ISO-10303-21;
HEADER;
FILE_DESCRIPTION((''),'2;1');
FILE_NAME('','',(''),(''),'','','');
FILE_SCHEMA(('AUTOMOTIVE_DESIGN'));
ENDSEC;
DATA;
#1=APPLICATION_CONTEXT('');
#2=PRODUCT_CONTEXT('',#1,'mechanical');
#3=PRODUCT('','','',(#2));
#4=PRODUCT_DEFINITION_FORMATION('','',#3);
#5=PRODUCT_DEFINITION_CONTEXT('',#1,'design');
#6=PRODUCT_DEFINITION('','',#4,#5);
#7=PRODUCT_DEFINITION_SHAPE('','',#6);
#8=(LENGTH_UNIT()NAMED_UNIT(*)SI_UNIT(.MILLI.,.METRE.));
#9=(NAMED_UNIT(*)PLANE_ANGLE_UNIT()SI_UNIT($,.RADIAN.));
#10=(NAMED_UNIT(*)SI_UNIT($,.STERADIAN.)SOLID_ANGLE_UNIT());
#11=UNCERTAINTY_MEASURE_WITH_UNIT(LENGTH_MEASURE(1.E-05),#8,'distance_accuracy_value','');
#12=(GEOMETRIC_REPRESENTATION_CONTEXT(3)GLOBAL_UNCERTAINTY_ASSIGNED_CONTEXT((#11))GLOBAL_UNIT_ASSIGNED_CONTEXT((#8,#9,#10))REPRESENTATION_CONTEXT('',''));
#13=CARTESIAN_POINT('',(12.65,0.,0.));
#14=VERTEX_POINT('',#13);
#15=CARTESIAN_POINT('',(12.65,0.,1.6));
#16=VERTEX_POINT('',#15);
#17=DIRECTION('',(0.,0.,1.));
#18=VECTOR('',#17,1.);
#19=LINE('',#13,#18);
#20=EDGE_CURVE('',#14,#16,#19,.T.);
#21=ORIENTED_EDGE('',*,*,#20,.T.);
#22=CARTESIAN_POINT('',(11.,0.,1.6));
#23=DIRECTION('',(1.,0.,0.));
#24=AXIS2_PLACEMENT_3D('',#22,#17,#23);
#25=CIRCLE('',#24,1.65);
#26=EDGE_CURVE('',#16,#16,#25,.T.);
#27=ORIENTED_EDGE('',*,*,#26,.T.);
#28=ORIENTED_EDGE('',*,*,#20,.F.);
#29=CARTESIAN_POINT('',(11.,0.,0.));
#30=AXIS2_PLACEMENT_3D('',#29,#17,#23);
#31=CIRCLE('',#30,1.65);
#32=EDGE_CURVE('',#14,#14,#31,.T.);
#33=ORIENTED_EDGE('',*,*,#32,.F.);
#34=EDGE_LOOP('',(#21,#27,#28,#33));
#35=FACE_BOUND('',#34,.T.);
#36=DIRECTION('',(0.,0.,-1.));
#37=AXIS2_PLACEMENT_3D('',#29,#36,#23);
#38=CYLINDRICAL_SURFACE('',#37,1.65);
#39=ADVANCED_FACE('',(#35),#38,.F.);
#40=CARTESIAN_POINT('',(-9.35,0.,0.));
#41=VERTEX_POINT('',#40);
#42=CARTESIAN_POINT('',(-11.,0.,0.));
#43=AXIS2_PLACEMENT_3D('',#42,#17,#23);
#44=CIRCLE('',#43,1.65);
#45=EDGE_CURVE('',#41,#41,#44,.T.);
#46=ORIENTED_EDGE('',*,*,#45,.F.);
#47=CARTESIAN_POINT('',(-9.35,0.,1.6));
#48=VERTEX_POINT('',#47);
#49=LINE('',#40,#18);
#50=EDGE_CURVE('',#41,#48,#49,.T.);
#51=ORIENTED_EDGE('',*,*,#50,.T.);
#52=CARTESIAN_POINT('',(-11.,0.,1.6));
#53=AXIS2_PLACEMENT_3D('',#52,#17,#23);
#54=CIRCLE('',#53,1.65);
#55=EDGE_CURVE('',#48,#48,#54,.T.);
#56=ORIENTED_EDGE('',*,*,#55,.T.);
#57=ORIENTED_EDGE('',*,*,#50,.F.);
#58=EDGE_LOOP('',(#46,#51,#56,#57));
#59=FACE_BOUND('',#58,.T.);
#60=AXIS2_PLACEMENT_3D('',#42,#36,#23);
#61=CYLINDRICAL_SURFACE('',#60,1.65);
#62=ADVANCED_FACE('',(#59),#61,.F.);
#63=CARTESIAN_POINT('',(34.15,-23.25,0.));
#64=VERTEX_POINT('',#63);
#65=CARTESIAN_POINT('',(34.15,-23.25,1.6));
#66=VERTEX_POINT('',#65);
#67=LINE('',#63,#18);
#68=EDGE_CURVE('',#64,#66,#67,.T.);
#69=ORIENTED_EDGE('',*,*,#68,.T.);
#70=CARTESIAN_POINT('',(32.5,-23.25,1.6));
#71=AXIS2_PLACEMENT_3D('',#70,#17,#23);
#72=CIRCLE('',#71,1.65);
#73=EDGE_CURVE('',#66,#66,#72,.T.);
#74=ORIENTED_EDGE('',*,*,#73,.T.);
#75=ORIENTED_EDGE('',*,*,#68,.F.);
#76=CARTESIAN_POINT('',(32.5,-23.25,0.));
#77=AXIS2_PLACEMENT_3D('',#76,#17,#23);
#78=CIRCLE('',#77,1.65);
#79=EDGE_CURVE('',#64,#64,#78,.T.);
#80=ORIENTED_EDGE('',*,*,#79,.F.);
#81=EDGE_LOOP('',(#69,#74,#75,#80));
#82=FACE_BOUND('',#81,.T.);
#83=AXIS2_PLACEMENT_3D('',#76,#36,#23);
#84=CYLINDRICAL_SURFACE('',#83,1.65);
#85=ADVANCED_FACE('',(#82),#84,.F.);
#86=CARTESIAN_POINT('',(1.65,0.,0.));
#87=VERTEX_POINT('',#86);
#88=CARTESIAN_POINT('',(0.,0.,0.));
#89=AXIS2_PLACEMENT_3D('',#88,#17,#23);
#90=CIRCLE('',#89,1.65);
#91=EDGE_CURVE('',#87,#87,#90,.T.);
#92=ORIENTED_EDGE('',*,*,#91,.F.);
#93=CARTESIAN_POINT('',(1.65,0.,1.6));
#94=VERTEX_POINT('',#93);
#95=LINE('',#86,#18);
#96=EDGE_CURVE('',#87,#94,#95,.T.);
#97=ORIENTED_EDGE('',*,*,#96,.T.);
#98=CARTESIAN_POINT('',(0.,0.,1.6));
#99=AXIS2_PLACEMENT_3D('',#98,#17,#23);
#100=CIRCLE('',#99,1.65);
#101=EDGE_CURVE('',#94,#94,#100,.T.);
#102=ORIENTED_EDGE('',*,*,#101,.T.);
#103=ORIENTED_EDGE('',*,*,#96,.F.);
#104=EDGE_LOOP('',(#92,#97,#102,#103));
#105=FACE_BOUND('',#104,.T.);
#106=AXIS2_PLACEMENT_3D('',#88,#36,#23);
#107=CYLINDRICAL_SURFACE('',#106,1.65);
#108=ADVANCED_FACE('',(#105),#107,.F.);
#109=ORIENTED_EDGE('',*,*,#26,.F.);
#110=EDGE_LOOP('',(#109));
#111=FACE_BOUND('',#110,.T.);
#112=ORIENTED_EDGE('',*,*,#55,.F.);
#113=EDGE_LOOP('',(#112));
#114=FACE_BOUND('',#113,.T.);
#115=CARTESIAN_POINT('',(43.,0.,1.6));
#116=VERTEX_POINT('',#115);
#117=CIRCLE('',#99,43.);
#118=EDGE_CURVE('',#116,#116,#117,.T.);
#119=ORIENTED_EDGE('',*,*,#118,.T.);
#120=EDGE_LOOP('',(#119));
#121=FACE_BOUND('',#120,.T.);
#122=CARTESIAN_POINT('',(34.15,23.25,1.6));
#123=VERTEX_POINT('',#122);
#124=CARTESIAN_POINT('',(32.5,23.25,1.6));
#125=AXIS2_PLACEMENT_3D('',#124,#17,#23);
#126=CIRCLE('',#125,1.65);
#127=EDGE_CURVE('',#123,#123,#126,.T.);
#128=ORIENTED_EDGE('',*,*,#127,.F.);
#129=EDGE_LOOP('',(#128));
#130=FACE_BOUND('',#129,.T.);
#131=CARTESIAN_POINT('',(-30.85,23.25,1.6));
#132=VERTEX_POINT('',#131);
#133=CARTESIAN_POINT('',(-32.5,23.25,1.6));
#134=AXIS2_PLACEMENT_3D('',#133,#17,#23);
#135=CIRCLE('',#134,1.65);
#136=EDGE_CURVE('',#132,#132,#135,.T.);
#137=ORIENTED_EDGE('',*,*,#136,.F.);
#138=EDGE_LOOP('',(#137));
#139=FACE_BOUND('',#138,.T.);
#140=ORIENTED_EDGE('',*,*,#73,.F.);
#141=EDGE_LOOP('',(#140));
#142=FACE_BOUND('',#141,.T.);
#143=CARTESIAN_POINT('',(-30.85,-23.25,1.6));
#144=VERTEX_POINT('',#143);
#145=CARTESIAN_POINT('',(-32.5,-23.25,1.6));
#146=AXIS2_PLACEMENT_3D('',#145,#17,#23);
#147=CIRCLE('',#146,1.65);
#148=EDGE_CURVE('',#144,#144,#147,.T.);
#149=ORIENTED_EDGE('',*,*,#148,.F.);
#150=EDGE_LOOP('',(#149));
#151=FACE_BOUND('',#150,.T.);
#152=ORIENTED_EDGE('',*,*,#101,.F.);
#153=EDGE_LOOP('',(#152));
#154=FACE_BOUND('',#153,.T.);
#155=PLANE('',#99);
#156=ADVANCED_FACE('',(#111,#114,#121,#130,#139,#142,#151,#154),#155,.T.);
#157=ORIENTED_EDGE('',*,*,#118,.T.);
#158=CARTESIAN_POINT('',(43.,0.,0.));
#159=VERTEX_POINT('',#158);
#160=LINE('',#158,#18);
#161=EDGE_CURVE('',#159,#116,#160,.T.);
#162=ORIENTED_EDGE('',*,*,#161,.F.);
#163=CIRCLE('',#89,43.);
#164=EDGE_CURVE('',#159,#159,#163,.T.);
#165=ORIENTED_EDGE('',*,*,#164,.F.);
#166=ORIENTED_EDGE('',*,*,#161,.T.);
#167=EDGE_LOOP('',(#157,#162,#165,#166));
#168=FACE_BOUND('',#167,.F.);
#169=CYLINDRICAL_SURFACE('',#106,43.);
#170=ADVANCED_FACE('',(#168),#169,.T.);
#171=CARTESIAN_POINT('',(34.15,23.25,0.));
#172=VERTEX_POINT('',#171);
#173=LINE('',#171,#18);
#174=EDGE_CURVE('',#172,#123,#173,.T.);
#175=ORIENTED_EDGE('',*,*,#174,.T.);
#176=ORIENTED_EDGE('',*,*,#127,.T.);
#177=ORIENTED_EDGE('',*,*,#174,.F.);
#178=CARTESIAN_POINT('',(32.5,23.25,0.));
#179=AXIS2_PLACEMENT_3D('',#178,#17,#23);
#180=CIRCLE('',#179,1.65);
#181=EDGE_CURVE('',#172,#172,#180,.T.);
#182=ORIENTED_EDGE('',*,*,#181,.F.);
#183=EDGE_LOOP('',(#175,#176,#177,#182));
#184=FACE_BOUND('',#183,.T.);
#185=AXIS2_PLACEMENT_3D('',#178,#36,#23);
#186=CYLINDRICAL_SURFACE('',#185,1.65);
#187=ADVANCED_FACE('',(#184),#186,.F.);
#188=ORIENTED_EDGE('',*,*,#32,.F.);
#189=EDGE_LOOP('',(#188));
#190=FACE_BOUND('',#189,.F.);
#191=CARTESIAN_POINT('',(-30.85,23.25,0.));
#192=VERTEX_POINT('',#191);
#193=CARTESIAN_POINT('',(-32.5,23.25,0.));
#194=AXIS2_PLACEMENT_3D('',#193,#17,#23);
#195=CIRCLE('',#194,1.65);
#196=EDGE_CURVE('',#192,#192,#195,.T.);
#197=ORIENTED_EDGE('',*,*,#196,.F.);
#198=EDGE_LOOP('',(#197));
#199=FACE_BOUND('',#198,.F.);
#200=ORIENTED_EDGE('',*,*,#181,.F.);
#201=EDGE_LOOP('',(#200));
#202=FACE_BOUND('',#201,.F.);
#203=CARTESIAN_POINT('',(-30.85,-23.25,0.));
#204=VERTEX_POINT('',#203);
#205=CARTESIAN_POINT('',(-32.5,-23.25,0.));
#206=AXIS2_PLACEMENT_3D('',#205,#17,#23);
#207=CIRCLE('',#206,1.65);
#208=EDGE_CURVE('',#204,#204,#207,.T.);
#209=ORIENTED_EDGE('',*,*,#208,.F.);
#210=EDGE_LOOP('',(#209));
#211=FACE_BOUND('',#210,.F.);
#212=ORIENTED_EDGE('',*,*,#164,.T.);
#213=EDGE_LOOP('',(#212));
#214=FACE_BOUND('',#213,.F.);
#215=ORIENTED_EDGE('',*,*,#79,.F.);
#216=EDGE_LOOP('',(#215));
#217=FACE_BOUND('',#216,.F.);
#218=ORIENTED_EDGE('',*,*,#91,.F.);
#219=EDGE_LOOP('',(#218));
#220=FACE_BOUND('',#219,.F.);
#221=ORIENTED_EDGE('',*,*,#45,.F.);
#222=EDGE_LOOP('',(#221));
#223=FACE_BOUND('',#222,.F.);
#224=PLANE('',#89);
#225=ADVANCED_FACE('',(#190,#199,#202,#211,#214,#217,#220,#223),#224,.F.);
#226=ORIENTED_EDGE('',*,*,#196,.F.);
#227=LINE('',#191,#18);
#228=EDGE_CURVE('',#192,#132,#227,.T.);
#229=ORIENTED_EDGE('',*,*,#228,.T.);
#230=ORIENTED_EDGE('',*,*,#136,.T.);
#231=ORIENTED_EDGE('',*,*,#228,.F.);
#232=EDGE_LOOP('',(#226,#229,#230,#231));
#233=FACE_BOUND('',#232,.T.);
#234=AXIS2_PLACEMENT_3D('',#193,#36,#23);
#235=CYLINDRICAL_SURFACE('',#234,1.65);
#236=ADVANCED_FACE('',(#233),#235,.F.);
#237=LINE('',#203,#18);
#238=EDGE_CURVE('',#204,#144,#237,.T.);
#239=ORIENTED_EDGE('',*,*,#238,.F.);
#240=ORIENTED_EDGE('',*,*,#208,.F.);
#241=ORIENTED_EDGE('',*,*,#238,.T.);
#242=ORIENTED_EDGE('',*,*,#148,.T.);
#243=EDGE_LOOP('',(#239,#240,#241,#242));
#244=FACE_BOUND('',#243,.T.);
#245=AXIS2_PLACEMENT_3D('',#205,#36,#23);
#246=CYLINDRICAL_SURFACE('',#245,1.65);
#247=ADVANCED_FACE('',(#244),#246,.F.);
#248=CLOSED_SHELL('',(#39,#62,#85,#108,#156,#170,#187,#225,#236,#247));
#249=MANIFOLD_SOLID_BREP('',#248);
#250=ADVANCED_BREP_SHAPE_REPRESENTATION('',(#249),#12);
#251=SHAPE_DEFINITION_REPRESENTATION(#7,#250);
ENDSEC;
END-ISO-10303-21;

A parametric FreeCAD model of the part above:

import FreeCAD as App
import Part
import Sketcher

V = App.Vector

doc = App.newDocument("Part")
body = doc.addObject("PartDesign::Body", "Body")

sketch1 = body.newObject("Sketcher::SketchObject", "Sketch")
sketch1.AttachmentSupport = (doc.getObject("XY_Plane"), [""])
sketch1.MapMode = "FlatFace"
sketch1.addGeometry([
    Part.Circle(V(0, 0, 0), V(0, 0, 1), 43),
    Part.Circle(V(-32.5, -23.25, 0), V(0, 0, 1), 1.65),
    Part.Circle(V(-11, 0, 0), V(0, 0, 1), 1.65),
    Part.Circle(V(32.5, -23.25, 0), V(0, 0, 1), 1.65),
    Part.Circle(V(0, 0, 0), V(0, 0, 1), 1.65),
    Part.Circle(V(11, 0, 0), V(0, 0, 1), 1.65),
    Part.Circle(V(-32.5, 23.25, 0), V(0, 0, 1), 1.65),
    Part.Circle(V(32.5, 23.25, 0), V(0, 0, 1), 1.65),
], False)
sketch1.addConstraint([
    Sketcher.Constraint("Coincident", 0, 3, -1, 1),
    Sketcher.Constraint("Coincident", 4, 3, -1, 1),
    Sketcher.Constraint("Equal", 1, 2),
    Sketcher.Constraint("Equal", 2, 3),
    Sketcher.Constraint("Equal", 3, 4),
    Sketcher.Constraint("Equal", 4, 5),
    Sketcher.Constraint("Equal", 5, 6),
    Sketcher.Constraint("Equal", 6, 7),
    Sketcher.Constraint("Symmetric", 2, 3, 5, 3, -1, 1),
    Sketcher.Constraint("Symmetric", 3, 3, 6, 3, -1, 1),
    Sketcher.Constraint("Symmetric", 1, 3, 7, 3, -1, 1),
    Sketcher.Constraint("Symmetric", 1, 3, 3, 3, -2),
    Sketcher.Constraint("PointOnObject", 2, 3, -1),
    Sketcher.Constraint("Diameter", 0, 86.0),
    Sketcher.Constraint("Diameter", 1, 3.3),
    Sketcher.Constraint("DistanceX", 2, 3, -1, 1, 11.0),
    Sketcher.Constraint("DistanceX", 1, 3, 3, 3, 65.0),
    Sketcher.Constraint("DistanceY", 1, 3, 6, 3, 46.5),
])
pad1 = body.newObject("PartDesign::Pad", "Pad")
pad1.Profile = sketch1
pad1.Length = 1.6

doc.recompute()
